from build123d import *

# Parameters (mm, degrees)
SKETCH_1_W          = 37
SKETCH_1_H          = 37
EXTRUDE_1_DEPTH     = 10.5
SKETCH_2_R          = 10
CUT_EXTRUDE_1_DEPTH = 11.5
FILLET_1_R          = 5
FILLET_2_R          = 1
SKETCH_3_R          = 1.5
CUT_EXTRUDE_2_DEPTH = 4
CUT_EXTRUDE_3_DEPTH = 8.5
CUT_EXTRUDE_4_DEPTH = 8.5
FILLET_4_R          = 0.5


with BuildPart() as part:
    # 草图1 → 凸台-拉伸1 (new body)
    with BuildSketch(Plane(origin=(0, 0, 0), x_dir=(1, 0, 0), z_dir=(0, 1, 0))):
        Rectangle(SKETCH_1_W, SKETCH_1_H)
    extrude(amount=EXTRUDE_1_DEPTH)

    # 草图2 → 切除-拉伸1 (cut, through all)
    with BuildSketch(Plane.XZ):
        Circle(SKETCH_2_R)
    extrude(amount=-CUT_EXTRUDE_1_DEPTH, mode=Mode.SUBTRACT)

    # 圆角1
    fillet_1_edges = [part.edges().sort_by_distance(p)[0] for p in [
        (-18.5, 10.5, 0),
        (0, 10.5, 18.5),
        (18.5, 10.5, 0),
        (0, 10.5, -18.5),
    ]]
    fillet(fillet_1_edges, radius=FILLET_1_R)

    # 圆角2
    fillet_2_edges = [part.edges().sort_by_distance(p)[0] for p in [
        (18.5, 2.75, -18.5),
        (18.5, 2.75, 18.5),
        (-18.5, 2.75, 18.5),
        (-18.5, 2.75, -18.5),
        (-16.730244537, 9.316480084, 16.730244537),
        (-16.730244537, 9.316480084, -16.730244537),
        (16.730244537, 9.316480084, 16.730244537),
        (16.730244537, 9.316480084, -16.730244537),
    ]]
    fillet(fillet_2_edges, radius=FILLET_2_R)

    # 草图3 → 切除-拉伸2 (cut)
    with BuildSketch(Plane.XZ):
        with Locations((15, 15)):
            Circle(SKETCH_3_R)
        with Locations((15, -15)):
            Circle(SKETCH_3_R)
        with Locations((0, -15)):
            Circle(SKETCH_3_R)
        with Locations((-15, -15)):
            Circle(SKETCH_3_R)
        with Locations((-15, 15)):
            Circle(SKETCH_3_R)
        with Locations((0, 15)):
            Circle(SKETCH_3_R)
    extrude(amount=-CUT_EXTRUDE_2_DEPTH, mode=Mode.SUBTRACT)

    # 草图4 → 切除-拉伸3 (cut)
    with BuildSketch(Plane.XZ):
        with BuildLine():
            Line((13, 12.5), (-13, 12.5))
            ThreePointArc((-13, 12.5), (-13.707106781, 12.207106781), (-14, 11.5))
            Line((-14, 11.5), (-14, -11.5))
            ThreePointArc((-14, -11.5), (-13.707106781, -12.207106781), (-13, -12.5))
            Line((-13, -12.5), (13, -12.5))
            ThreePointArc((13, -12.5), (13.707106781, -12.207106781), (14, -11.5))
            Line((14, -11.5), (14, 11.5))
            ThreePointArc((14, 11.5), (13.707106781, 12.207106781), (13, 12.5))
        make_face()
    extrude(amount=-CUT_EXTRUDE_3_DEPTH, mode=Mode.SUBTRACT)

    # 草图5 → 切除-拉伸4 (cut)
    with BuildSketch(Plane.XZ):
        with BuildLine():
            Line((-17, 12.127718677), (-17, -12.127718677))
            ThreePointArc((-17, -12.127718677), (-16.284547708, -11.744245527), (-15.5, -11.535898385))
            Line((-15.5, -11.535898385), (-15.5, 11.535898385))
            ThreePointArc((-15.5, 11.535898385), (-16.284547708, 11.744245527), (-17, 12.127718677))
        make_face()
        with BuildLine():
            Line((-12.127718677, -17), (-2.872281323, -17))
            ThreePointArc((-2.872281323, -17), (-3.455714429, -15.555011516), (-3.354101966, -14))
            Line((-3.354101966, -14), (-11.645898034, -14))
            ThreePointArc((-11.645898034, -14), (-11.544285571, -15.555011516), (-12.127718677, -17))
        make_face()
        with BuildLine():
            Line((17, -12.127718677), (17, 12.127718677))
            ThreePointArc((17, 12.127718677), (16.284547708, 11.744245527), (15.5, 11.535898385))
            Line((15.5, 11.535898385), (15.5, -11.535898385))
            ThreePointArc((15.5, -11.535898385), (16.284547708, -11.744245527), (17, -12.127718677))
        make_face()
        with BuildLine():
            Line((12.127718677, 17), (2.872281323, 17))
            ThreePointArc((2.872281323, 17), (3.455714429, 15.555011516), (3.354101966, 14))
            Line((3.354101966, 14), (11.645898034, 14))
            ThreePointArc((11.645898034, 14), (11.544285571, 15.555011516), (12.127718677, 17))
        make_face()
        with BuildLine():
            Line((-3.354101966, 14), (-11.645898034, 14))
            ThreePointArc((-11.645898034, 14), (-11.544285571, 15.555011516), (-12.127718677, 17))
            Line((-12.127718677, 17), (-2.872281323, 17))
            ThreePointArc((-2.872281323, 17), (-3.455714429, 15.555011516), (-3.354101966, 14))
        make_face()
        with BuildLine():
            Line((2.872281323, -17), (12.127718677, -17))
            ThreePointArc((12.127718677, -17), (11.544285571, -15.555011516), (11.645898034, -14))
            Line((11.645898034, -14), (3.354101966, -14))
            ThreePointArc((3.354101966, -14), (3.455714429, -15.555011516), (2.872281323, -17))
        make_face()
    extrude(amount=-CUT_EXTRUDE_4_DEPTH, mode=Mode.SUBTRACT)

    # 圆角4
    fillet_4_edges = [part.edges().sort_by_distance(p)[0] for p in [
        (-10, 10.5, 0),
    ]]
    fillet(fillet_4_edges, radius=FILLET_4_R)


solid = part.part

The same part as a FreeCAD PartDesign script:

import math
import FreeCAD as App
import Part
import Sketcher
from FreeCAD import Vector


def edges_at(feature, points):
    """Names of the edges that pass closest to the given points."""
    edges = feature.Shape.Edges
    near = lambda p: min(range(len(edges)), key=lambda i: edges[i].distToShape(Part.Vertex(*p))[0])
    return sorted({f"Edge{near(p) + 1}" for p in points})


def add_polygon(sketch, points):
    """Adds a closed chain of lines whose ends are joined by coincident constraints."""
    first, n = sketch.GeometryCount, len(points)
    for a, b in zip(points, points[1:] + points[:1]):
        sketch.addGeometry(Part.LineSegment(App.Vector(*a, 0), App.Vector(*b, 0)), False)
    for i in range(n):
        sketch.addConstraint(Sketcher.Constraint("Coincident", first + i, 2, first + (i + 1) % n, 1))

doc = App.newDocument("Part")
body = doc.addObject("PartDesign::Body", "Body")

# Sketch on XZ plane
sketch1 = body.newObject("Sketcher::SketchObject", "Sketch")
sketch1.AttachmentSupport = (doc.getObject("XZ_Plane"), [""])
sketch1.MapMode = "FlatFace"
add_polygon(sketch1, [(-18, -18), (-18, 18), (18, 18), (18, -18)])  # lines 0-3
sketch1.addConstraint(Sketcher.Constraint("Vertical", 0))
sketch1.addConstraint(Sketcher.Constraint("Horizontal", 1))
sketch1.addConstraint(Sketcher.Constraint("Vertical", 2))
sketch1.addConstraint(Sketcher.Constraint("Horizontal", 3))
sketch1.addConstraint(Sketcher.Constraint("Symmetric", 0, 2, 2, 2, -1, 1))
sketch1.addConstraint(Sketcher.Constraint("Equal", 3, 0))
sketch1.addConstraint(Sketcher.Constraint("DistanceX", 1, 1, 1, 2, 37.0))
pad1 = body.newObject("PartDesign::Pad", "Pad")
pad1.Profile = sketch1
pad1.Length = 10.5
pad1.Reversed = True

# Sketch on XZ plane
sketch2 = body.newObject("Sketcher::SketchObject", "Sketch001")
sketch2.AttachmentSupport = (doc.getObject("XZ_Plane"), [""])
sketch2.MapMode = "FlatFace"
sketch2.addGeometry(Part.Circle(Vector(0, 0, 0), Vector(0, 0, 1), 10), False)
sketch2.addConstraint(Sketcher.Constraint("Coincident", 0, 3, -1, 1))
sketch2.addConstraint(Sketcher.Constraint("Diameter", 0, 20.0))
pocket1 = body.newObject("PartDesign::Pocket", "Pocket")
pocket1.Profile = sketch2
pocket1.Type = "ThroughAll"
doc.recompute()

fillet = body.newObject("PartDesign::Fillet", "Fillet")
fillet.Base = (pocket1, edges_at(pocket1, [
    (-18.5, 10.5, 0),
    (0, 10.5, 18.5),
    (18.5, 10.5, 0),
    (0, 10.5, -18.5),
]))
fillet.Radius = 5
doc.recompute()

fillet2 = body.newObject("PartDesign::Fillet", "Fillet001")
fillet2.Base = (fillet, edges_at(fillet, [
    (18.5, 2.75, -18.5),
    (18.5, 2.75, 18.5),
    (-18.5, 2.75, 18.5),
    (-18.5, 2.75, -18.5),
    (-16.73, 9.316, 16.73),
    (-16.73, 9.316, -16.73),
    (16.73, 9.316, 16.73),
    (16.73, 9.316, -16.73),
]))
fillet2.Radius = 1

# Sketch on XZ plane
sketch3 = body.newObject("Sketcher::SketchObject", "Sketch002")
sketch3.AttachmentSupport = (doc.getObject("XZ_Plane"), [""])
sketch3.MapMode = "FlatFace"
sketch3.addGeometry(Part.Circle(Vector(15, 15, 0), Vector(0, 0, 1), 1.5), False)
sketch3.addGeometry(Part.Circle(Vector(15, -15, 0), Vector(0, 0, 1), 1.5), False)
sketch3.addGeometry(Part.Circle(Vector(0, -15, 0), Vector(0, 0, 1), 1.5), False)
sketch3.addGeometry(Part.Circle(Vector(-15, -15, 0), Vector(0, 0, 1), 1.5), False)
sketch3.addGeometry(Part.Circle(Vector(-15, 15, 0), Vector(0, 0, 1), 1.5), False)
sketch3.addGeometry(Part.Circle(Vector(0, 15, 0), Vector(0, 0, 1), 1.5), False)
sketch3.addConstraint(Sketcher.Constraint("Equal", 0, 1))
sketch3.addConstraint(Sketcher.Constraint("Equal", 1, 2))
sketch3.addConstraint(Sketcher.Constraint("Equal", 2, 3))
sketch3.addConstraint(Sketcher.Constraint("Equal", 3, 4))
sketch3.addConstraint(Sketcher.Constraint("Equal", 4, 5))
sketch3.addConstraint(Sketcher.Constraint("Symmetric", 0, 3, 3, 3, -1, 1))
sketch3.addConstraint(Sketcher.Constraint("Symmetric", 1, 3, 4, 3, -1, 1))
sketch3.addConstraint(Sketcher.Constraint("Symmetric", 2, 3, 5, 3, -1, 1))
sketch3.addConstraint(Sketcher.Constraint("Symmetric", 1, 3, 3, 3, -2))
sketch3.addConstraint(Sketcher.Constraint("PointOnObject", 2, 3, -2))
sketch3.addConstraint(Sketcher.Constraint("Horizontal", 1, 3, 2, 3))
sketch3.addConstraint(Sketcher.Constraint("Diameter", 0, 3.0))
sketch3.addConstraint(Sketcher.Constraint("DistanceX", -1, 1, 0, 3, 15.0))
sketch3.addConstraint(Sketcher.Constraint("DistanceY", -1, 1, 0, 3, 15.0))
pocket2 = body.newObject("PartDesign::Pocket", "Pocket001")
pocket2.Profile = sketch3
pocket2.Length = 4

# Sketch on XZ plane
sketch4 = body.newObject("Sketcher::SketchObject", "Sketch003")
sketch4.AttachmentSupport = (doc.getObject("XZ_Plane"), [""])
sketch4.MapMode = "FlatFace"
sketch4.addGeometry(Part.LineSegment(Vector(13, 12.5, 0), Vector(-13, 12.5, 0)), False)
sketch4.addGeometry(Part.ArcOfCircle(Part.Circle(Vector(-13, 11.5, 0), Vector(0, 0, 1), 1), math.radians(90), math.radians(180)), False)
sketch4.addGeometry(Part.LineSegment(Vector(-14, 11.5, 0), Vector(-14, -11.5, 0)), False)
sketch4.addGeometry(Part.ArcOfCircle(Part.Circle(Vector(-13, -11.5, 0), Vector(0, 0, 1), 1), math.radians(-180), math.radians(-90)), False)
sketch4.addGeometry(Part.LineSegment(Vector(-13, -12.5, 0), Vector(13, -12.5, 0)), False)
sketch4.addGeometry(Part.ArcOfCircle(Part.Circle(Vector(13, -11.5, 0), Vector(0, 0, 1), 1), math.radians(-90), math.radians(0)), False)
sketch4.addGeometry(Part.LineSegment(Vector(14, -11.5, 0), Vector(14, 11.5, 0)), False)
sketch4.addGeometry(Part.ArcOfCircle(Part.Circle(Vector(13, 11.5, 0), Vector(0, 0, 1), 1), math.radians(0), math.radians(90)), False)
sketch4.addConstraint(Sketcher.Constraint("Tangent", 0, 2, 1, 1))
sketch4.addConstraint(Sketcher.Constraint("Tangent", 1, 2, 2, 1))
sketch4.addConstraint(Sketcher.Constraint("Tangent", 2, 2, 3, 1))
sketch4.addConstraint(Sketcher.Constraint("Tangent", 3, 2, 4, 1))
sketch4.addConstraint(Sketcher.Constraint("Tangent", 4, 2, 5, 1))
sketch4.addConstraint(Sketcher.Constraint("Tangent", 5, 2, 6, 1))
sketch4.addConstraint(Sketcher.Constraint("Tangent", 6, 2, 7, 1))
sketch4.addConstraint(Sketcher.Constraint("Tangent", 7, 2, 0, 1))
sketch4.addConstraint(Sketcher.Constraint("Horizontal", 0))
sketch4.addConstraint(Sketcher.Constraint("Vertical", 2))
sketch4.addConstraint(Sketcher.Constraint("Horizontal", 4))
sketch4.addConstraint(Sketcher.Constraint("Vertical", 6))
sketch4.addConstraint(Sketcher.Constraint("Equal", 1, 3))
sketch4.addConstraint(Sketcher.Constraint("Equal", 3, 5))
sketch4.addConstraint(Sketcher.Constraint("Equal", 5, 7))
sketch4.addConstraint(Sketcher.Constraint("Symmetric", 1, 3, 5, 3, -1, 1))
sketch4.addConstraint(Sketcher.Constraint("Radius", 1, 1.0))
sketch4.addConstraint(Sketcher.Constraint("DistanceX", 0, 2, 0, 1, 26.0))
sketch4.addConstraint(Sketcher.Constraint("DistanceY", 2, 2, 2, 1, 23.0))
pocket3 = body.newObject("PartDesign::Pocket", "Pocket002")
pocket3.Profile = sketch4
pocket3.Length = 8.5

# Sketch on XZ plane
sketch5 = body.newObject("Sketcher::SketchObject", "Sketch004")
sketch5.AttachmentSupport = (doc.getObject("XZ_Plane"), [""])
sketch5.MapMode = "FlatFace"
sketch5.addGeometry(Part.LineSegment(Vector(-17, 12.1, 0), Vector(-17, -12.1, 0)), False)
sketch5.addGeometry(Part.ArcOfCircle(Part.Circle(Vector(-15, -15, 0), Vector(0, 0, 1), 3.5), math.radians(98), math.radians(125)), False)
sketch5.addGeometry(Part.LineSegment(Vector(-15.5, -11.5, 0), Vector(-15.5, 11.5, 0)), False)
sketch5.addGeometry(Part.ArcOfCircle(Part.Circle(Vector(-15, 15, 0), Vector(0, 0, 1), 3.5), math.radians(-125), math.radians(-98)), False)
sketch5.addGeometry(Part.LineSegment(Vector(-12.1, -17, 0), Vector(-2.9, -17, 0)), False)
sketch5.addGeometry(Part.ArcOfCircle(Part.Circle(Vector(0, -15, 0), Vector(0, 0, 1), 3.5), math.radians(163), math.radians(215)), False)
sketch5.addGeometry(Part.LineSegment(Vector(-3.4, -14, 0), Vector(-11.6, -14, 0)), False)
sketch5.addGeometry(Part.ArcOfCircle(Part.Circle(Vector(-15, -15, 0), Vector(0, 0, 1), 3.5), math.radians(-35), math.radians(17)), False)
sketch5.addGeometry(Part.LineSegment(Vector(17, -12.1, 0), Vector(17, 12.1, 0)), False)
sketch5.addGeometry(Part.ArcOfCircle(Part.Circle(Vector(15, 15, 0), Vector(0, 0, 1), 3.5), math.radians(-82), math.radians(-55)), False)
sketch5.addGeometry(Part.LineSegment(Vector(15.5, 11.5, 0), Vector(15.5, -11.5, 0)), False)
sketch5.addGeometry(Part.ArcOfCircle(Part.Circle(Vector(15, -15, 0), Vector(0, 0, 1), 3.5), math.radians(55), math.radians(82)), False)
sketch5.addGeometry(Part.LineSegment(Vector(12.1, 17, 0), Vector(2.9, 17, 0)), False)
sketch5.addGeometry(Part.ArcOfCircle(Part.Circle(Vector(0, 15, 0), Vector(0, 0, 1), 3.5), math.radians(-17), math.radians(35)), False)
sketch5.addGeometry(Part.LineSegment(Vector(3.4, 14, 0), Vector(11.6, 14, 0)), False)
sketch5.addGeometry(Part.ArcOfCircle(Part.Circle(Vector(15, 15, 0), Vector(0, 0, 1), 3.5), math.radians(145), math.radians(197)), False)
sketch5.addGeometry(Part.LineSegment(Vector(-11.6, 14, 0), Vector(-3.4, 14, 0)), False)
sketch5.addGeometry(Part.ArcOfCircle(Part.Circle(Vector(0, 15, 0), Vector(0, 0, 1), 3.5), math.radians(145), math.radians(197)), False)
sketch5.addGeometry(Part.LineSegment(Vector(-2.9, 17, 0), Vector(-12.1, 17, 0)), False)
sketch5.addGeometry(Part.ArcOfCircle(Part.Circle(Vector(-15, 15, 0), Vector(0, 0, 1), 3.5), math.radians(-17), math.radians(35)), False)
sketch5.addGeometry(Part.LineSegment(Vector(2.9, -17, 0), Vector(12.1, -17, 0)), False)
sketch5.addGeometry(Part.ArcOfCircle(Part.Circle(Vector(15, -15, 0), Vector(0, 0, 1), 3.5), math.radians(163), math.radians(215)), False)
sketch5.addGeometry(Part.LineSegment(Vector(11.6, -14, 0), Vector(3.4, -14, 0)), False)
sketch5.addGeometry(Part.ArcOfCircle(Part.Circle(Vector(0, -15, 0), Vector(0, 0, 1), 3.5), math.radians(-35), math.radians(17)), False)
sketch5.addConstraint(Sketcher.Constraint("Coincident", 0, 2, 1, 2))
sketch5.addConstraint(Sketcher.Constraint("Coincident", 1, 1, 2, 1))
sketch5.addConstraint(Sketcher.Constraint("Coincident", 2, 2, 3, 2))
sketch5.addConstraint(Sketcher.Constraint("Coincident", 3, 1, 0, 1))
sketch5.addConstraint(Sketcher.Constraint("Coincident", 4, 2, 5, 2))
sketch5.addConstraint(Sketcher.Constraint("Coincident", 5, 1, 6, 1))
sketch5.addConstraint(Sketcher.Constraint("Coincident", 6, 2, 7, 2))
sketch5.addConstraint(Sketcher.Constraint("Coincident", 7, 1, 4, 1))
sketch5.addConstraint(Sketcher.Constraint("Coincident", 8, 2, 9, 2))
sketch5.addConstraint(Sketcher.Constraint("Coincident", 9, 1, 10, 1))
sketch5.addConstraint(Sketcher.Constraint("Coincident", 10, 2, 11, 2))
sketch5.addConstraint(Sketcher.Constraint("Coincident", 11, 1, 8, 1))
sketch5.addConstraint(Sketcher.Constraint("Coincident", 12, 2, 13, 2))
sketch5.addConstraint(Sketcher.Constraint("Coincident", 13, 1, 14, 1))
sketch5.addConstraint(Sketcher.Constraint("Coincident", 14, 2, 15, 2))
sketch5.addConstraint(Sketcher.Constraint("Coincident", 15, 1, 12, 1))
sketch5.addConstraint(Sketcher.Constraint("Coincident", 16, 2, 17, 2))
sketch5.addConstraint(Sketcher.Constraint("Coincident", 17, 1, 18, 1))
sketch5.addConstraint(Sketcher.Constraint("Coincident", 18, 2, 19, 2))
sketch5.addConstraint(Sketcher.Constraint("Coincident", 19, 1, 16, 1))
sketch5.addConstraint(Sketcher.Constraint("Coincident", 20, 2, 21, 2))
sketch5.addConstraint(Sketcher.Constraint("Coincident", 21, 1, 22, 1))
sketch5.addConstraint(Sketcher.Constraint("Coincident", 22, 2, 23, 2))
sketch5.addConstraint(Sketcher.Constraint("Coincident", 23, 1, 20, 1))
sketch5.addConstraint(Sketcher.Constraint("Vertical", 0))
sketch5.addConstraint(Sketcher.Constraint("Vertical", 2))
sketch5.addConstraint(Sketcher.Constraint("Horizontal", 4))
sketch5.addConstraint(Sketcher.Constraint("Horizontal", 6))
sketch5.addConstraint(Sketcher.Constraint("Vertical", 8))
sketch5.addConstraint(Sketcher.Constraint("Vertical", 10))
sketch5.addConstraint(Sketcher.Constraint("Horizontal", 12))
sketch5.addConstraint(Sketcher.Constraint("Horizontal", 14))
sketch5.addConstraint(Sketcher.Constraint("Horizontal", 16))
sketch5.addConstraint(Sketcher.Constraint("Horizontal", 18))
sketch5.addConstraint(Sketcher.Constraint("Horizontal", 20))
sketch5.addConstraint(Sketcher.Constraint("Horizontal", 22))
sketch5.addConstraint(Sketcher.Constraint("Coincident", 7, 3, 1, 3))
sketch5.addConstraint(Sketcher.Constraint("Coincident", 15, 3, 9, 3))
sketch5.addConstraint(Sketcher.Constraint("Coincident", 17, 3, 13, 3))
sketch5.addConstraint(Sketcher.Constraint("Coincident", 19, 3, 3, 3))
sketch5.addConstraint(Sketcher.Constraint("Coincident", 21, 3, 11, 3))
sketch5.addConstraint(Sketcher.Constraint("Coincident", 23, 3, 5, 3))
sketch5.addConstraint(Sketcher.Constraint("Equal", 1, 3))
sketch5.addConstraint(Sketcher.Constraint("Equal", 3, 5))
sketch5.addConstraint(Sketcher.Constraint("Equal", 5, 7))
sketch5.addConstraint(Sketcher.Constraint("Equal", 7, 9))
sketch5.addConstraint(Sketcher.Constraint("Equal", 9, 11))
sketch5.addConstraint(Sketcher.Constraint("Equal", 11, 13))
sketch5.addConstraint(Sketcher.Constraint("Equal", 13, 15))
sketch5.addConstraint(Sketcher.Constraint("Equal", 15, 17))
sketch5.addConstraint(Sketcher.Constraint("Equal", 17, 19))
sketch5.addConstraint(Sketcher.Constraint("Equal", 19, 21))
sketch5.addConstraint(Sketcher.Constraint("Equal", 21, 23))
sketch5.addConstraint(Sketcher.Constraint("Symmetric", 1, 3, 9, 3, -1, 1))
sketch5.addConstraint(Sketcher.Constraint("Symmetric", 3, 3, 11, 3, -1, 1))
sketch5.addConstraint(Sketcher.Constraint("Symmetric", 5, 3, 13, 3, -1, 1))
sketch5.addConstraint(Sketcher.Constraint("Symmetric", 3, 3, 9, 3, -2))
sketch5.addConstraint(Sketcher.Constraint("Symmetric", 13, 1, 16, 2, -2))
sketch5.addConstraint(Sketcher.Constraint("Horizontal", 1, 3, 5, 3))
sketch5.addConstraint(Sketcher.Constraint("Horizontal", 3, 1, 8, 2))
sketch5.addConstraint(Sketcher.Constraint("Horizontal", 2, 2, 9, 1))
sketch5.addConstraint(Sketcher.Constraint("Horizontal", 15, 1, 17, 1))
sketch5.addConstraint(Sketcher.Constraint("Horizontal", 7, 1, 20, 2))
sketch5.addConstraint(Sketcher.Constraint("Horizontal", 6, 2, 21, 1))
sketch5.addConstraint(Sketcher.Constraint("Vertical", 5, 1, 16, 2))
sketch5.addConstraint(Sketcher.Constraint("Vertical", 4, 2, 17, 1))
sketch5.addConstraint(Sketcher.Constraint("Radius", 1, 3.5))
sketch5.addConstraint(Sketcher.Constraint("DistanceX", 1, 3, -1, 1, 15.0))
sketch5.addConstraint(Sketcher.Constraint("DistanceY", 1, 3, -1, 1, 15.0))
sketch5.addConstraint(Sketcher.Constraint("DistanceX", 0, 2, -1, 1, 17.0))
sketch5.addConstraint(Sketcher.Constraint("DistanceY", 4, 2, -1, 1, 17.0))
sketch5.addConstraint(Sketcher.Constraint("DistanceY", 5, 1, -1, 1, 14.0))
sketch5.addConstraint(Sketcher.Constraint("DistanceX", 1, 1, -1, 1, 15.5))
pocket4 = body.newObject("PartDesign::Pocket", "Pocket003")
pocket4.Profile = sketch5
pocket4.Length = 8.5
doc.recompute()

fillet3 = body.newObject("PartDesign::Fillet", "Fillet002")
fillet3.Base = (pocket4, edges_at(pocket4, [(-10, 10.5, 0)]))
fillet3.Radius = 0.5

doc.recompute()
